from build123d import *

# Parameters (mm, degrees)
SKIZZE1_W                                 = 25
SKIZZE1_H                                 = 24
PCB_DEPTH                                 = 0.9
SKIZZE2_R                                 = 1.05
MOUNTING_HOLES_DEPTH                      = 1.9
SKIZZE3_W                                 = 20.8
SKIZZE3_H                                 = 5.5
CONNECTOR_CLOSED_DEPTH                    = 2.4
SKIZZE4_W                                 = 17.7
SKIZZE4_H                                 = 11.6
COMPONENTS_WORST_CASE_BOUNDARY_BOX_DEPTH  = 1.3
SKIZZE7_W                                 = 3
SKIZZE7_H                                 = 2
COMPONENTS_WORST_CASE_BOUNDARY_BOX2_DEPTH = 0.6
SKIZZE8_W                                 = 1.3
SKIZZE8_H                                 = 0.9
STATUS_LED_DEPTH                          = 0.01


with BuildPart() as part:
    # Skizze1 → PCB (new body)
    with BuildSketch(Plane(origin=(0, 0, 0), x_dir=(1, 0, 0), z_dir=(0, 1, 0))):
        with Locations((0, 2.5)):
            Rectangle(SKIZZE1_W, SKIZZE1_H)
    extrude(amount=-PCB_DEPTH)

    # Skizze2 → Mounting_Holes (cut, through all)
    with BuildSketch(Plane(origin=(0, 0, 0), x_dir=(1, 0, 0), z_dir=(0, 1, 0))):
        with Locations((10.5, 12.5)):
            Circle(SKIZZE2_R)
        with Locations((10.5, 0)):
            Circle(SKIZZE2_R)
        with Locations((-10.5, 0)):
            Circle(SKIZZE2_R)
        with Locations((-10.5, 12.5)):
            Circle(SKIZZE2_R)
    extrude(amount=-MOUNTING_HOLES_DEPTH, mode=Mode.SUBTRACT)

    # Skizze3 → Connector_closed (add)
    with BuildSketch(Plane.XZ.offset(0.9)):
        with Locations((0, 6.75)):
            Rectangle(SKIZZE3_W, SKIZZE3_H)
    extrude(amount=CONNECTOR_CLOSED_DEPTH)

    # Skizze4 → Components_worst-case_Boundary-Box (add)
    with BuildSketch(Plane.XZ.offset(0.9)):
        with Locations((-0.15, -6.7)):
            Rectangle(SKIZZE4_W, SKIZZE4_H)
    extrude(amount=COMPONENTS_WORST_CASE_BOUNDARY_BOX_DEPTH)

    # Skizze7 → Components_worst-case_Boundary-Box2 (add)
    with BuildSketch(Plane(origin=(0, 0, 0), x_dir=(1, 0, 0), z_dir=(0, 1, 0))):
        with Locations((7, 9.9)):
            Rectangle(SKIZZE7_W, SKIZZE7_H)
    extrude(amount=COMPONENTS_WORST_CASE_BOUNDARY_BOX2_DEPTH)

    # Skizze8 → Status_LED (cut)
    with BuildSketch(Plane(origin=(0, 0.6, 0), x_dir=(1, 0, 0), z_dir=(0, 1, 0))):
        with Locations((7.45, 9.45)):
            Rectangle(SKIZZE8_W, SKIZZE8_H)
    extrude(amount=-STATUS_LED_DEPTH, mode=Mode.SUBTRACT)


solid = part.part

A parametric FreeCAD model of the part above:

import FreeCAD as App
import Part
import Sketcher
from FreeCAD import Vector


def add_polygon(sketch, points):
    """Adds a closed chain of lines whose ends are joined by coincident constraints."""
    first, n = sketch.GeometryCount, len(points)
    for a, b in zip(points, points[1:] + points[:1]):
        sketch.addGeometry(Part.LineSegment(App.Vector(*a, 0), App.Vector(*b, 0)), False)
    for i in range(n):
        sketch.addConstraint(Sketcher.Constraint("Coincident", first + i, 2, first + (i + 1) % n, 1))

doc = App.newDocument("Part")
params = doc.addObject("Spreadsheet::Sheet", "Params")
for row, (alias, value) in enumerate([
    ("sketch1_width", "25 mm"),
    ("sketch1_height", "24 mm"),
    ("pad1_length", "0.9 mm"),
    ("sketch2_diameter", "2.1 mm"),
    ("sketch3_width", "20.8 mm"),
    ("sketch3_height", "5.5 mm"),
    ("pad2_length", "2.4 mm"),
    ("sketch4_width", "17.7 mm"),
    ("sketch4_height", "11.6 mm"),
    ("pad3_length", "1.3 mm"),
    ("sketch5_width", "3 mm"),
    ("sketch5_height", "2 mm"),
    ("pad4_length", "0.6 mm"),
    ("sketch6_width", "1.3 mm"),
    ("sketch6_height", "0.9 mm"),
    ("pocket2_length", "0.01 mm"),
], start=1):
    params.set(f"A{row}", alias)
    params.set(f"B{row}", "=" + value)
    params.setAlias(f"B{row}", alias)

body = doc.addObject("PartDesign::Body", "Body")

# Sketch on XZ plane
sketch1 = body.newObject("Sketcher::SketchObject", "Sketch")
sketch1.AttachmentSupport = (doc.getObject("XZ_Plane"), [""])
sketch1.MapMode = "FlatFace"
add_polygon(sketch1, [(-12, -14), (-12, 10), (12, 10), (12, -14)])  # lines 0-3
sketch1.addConstraint([
    Sketcher.Constraint("Vertical", 0),
    Sketcher.Constraint("Horizontal", 1),
    Sketcher.Constraint("Vertical", 2),
    Sketcher.Constraint("Horizontal", 3),
    Sketcher.Constraint("DistanceX", 1, 1, 1, 2, 25.0),
    Sketcher.Constraint("DistanceY", 0, 1, 0, 2, 24.0),
    Sketcher.Constraint("DistanceX", 0, 2, -1, 1, 12.5),
    Sketcher.Constraint("DistanceY", -1, 1, 0, 2, 9.5),
])
sketch1.setExpression("Constraints[8]", "Params.sketch1_width")
sketch1.setExpression("Constraints[9]", "Params.sketch1_height")
pad1 = body.newObject("PartDesign::Pad", "Pad")
pad1.Profile = sketch1
pad1.setExpression("Length", "Params.pad1_length")

# Sketch on XZ plane
sketch2 = body.newObject("Sketcher::SketchObject", "Sketch001")
sketch2.AttachmentSupport = (doc.getObject("XZ_Plane"), [""])
sketch2.MapMode = "FlatFace"
sketch2.addGeometry([
    Part.Circle(Vector(10.5, -12.5, 0), Vector(0, 0, 1), 1.1),
    Part.Circle(Vector(10.5, 0, 0), Vector(0, 0, 1), 1.1),
    Part.Circle(Vector(-10.5, 0, 0), Vector(0, 0, 1), 1.1),
    Part.Circle(Vector(-10.5, -12.5, 0), Vector(0, 0, 1), 1.1),
], False)
sketch2.addConstraint([
    Sketcher.Constraint("Equal", 0, 1),
    Sketcher.Constraint("Equal", 1, 2),
    Sketcher.Constraint("Equal", 2, 3),
    Sketcher.Constraint("Symmetric", 1, 3, 2, 3, -1, 1),
    Sketcher.Constraint("Symmetric", 0, 3, 3, 3, -2),
    Sketcher.Constraint("PointOnObject", 1, 3, -1),
    Sketcher.Constraint("Vertical", 0, 3, 1, 3),
    Sketcher.Constraint("Diameter", 0, 2.1),
    Sketcher.Constraint("DistanceX", 2, 3, 1, 3, 21.0),
    Sketcher.Constraint("DistanceY", 0, 3, -1, 1, 12.5),
])
sketch2.setExpression("Constraints[7]", "Params.sketch2_diameter")
pocket1 = body.newObject("PartDesign::Pocket", "Pocket")
pocket1.Profile = sketch2
pocket1.Type = "ThroughAll"
pocket1.Reversed = True

# Sketch on XZ plane
sketch3 = body.newObject("Sketcher::SketchObject", "Sketch002")
sketch3.AttachmentSupport = (doc.getObject("XZ_Plane"), [""])
sketch3.MapMode = "FlatFace"
sketch3.AttachmentOffset = App.Placement(Vector(0, 0, 0.9), App.Rotation())
add_polygon(sketch3, [(-10, 10), (-10, 4), (10, 4), (10, 10)])  # lines 0-3
sketch3.addConstraint([
    Sketcher.Constraint("Vertical", 0),
    Sketcher.Constraint("Horizontal", 1),
    Sketcher.Constraint("Vertical", 2),
    Sketcher.Constraint("Horizontal", 3),
    Sketcher.Constraint("DistanceX", 1, 1, 1, 2, 20.8),
    Sketcher.Constraint("DistanceY", 0, 2, 0, 1, 5.5),
    Sketcher.Constraint("DistanceY", -1, 1, 0, 2, 4.0),
    Sketcher.Constraint("DistanceX", 0, 2, -1, 1, 10.4),
])
sketch3.setExpression("Constraints[8]", "Params.sketch3_width")
sketch3.setExpression("Constraints[9]", "Params.sketch3_height")
pad2 = body.newObject("PartDesign::Pad", "Pad001")
pad2.Profile = sketch3
pad2.setExpression("Length", "Params.pad2_length")

# Sketch on XZ plane
sketch4 = body.newObject("Sketcher::SketchObject", "Sketch003")
sketch4.AttachmentSupport = (doc.getObject("XZ_Plane"), [""])
sketch4.MapMode = "FlatFace"
sketch4.AttachmentOffset = App.Placement(Vector(0, 0, 0.9), App.Rotation())
add_polygon(sketch4, [(-9, -1), (-9, -12), (9, -12), (9, -1)])  # lines 0-3
sketch4.addConstraint([
    Sketcher.Constraint("Vertical", 0),
    Sketcher.Constraint("Horizontal", 1),
    Sketcher.Constraint("Vertical", 2),
    Sketcher.Constraint("Horizontal", 3),
    Sketcher.Constraint("DistanceX", 1, 1, 1, 2, 17.7),
    Sketcher.Constraint("DistanceY", 0, 2, 0, 1, 11.6),
    Sketcher.Constraint("DistanceX", 0, 2, -1, 1, 9.0),
    Sketcher.Constraint("DistanceY", 0, 2, -1, 1, 12.5),
])
sketch4.setExpression("Constraints[8]", "Params.sketch4_width")
sketch4.setExpression("Constraints[9]", "Params.sketch4_height")
pad3 = body.newObject("PartDesign::Pad", "Pad002")
pad3.Profile = sketch4
pad3.setExpression("Length", "Params.pad3_length")

# Sketch on XZ plane
sketch5 = body.newObject("Sketcher::SketchObject", "Sketch004")
sketch5.AttachmentSupport = (doc.getObject("XZ_Plane"), [""])
sketch5.MapMode = "FlatFace"
add_polygon(sketch5, [(5.5, -10.9), (5.5, -8.9), (8.5, -8.9), (8.5, -10.9)])  # lines 0-3
sketch5.addConstraint([
    Sketcher.Constraint("Vertical", 0),
    Sketcher.Constraint("Horizontal", 1),
    Sketcher.Constraint("Vertical", 2),
    Sketcher.Constraint("Horizontal", 3),
    Sketcher.Constraint("DistanceX", 1, 1, 1, 2, 3.0),
    Sketcher.Constraint("DistanceY", 0, 1, 0, 2, 2.0),
    Sketcher.Constraint("DistanceX", -1, 1, 0, 2, 5.5),
    Sketcher.Constraint("DistanceY", 0, 2, -1, 1, 8.9),
])
sketch5.setExpression("Constraints[8]", "Params.sketch5_width")
sketch5.setExpression("Constraints[9]", "Params.sketch5_height")
pad4 = body.newObject("PartDesign::Pad", "Pad003")
pad4.Profile = sketch5
pad4.setExpression("Length", "Params.pad4_length")
pad4.Reversed = True

# Sketch on XZ plane
sketch6 = body.newObject("Sketcher::SketchObject", "Sketch005")
sketch6.AttachmentSupport = (doc.getObject("XZ_Plane"), [""])
sketch6.MapMode = "FlatFace"
sketch6.AttachmentOffset = App.Placement(Vector(0, 0, -0.6), App.Rotation())
add_polygon(sketch6, [(6.8, -9.9), (6.8, -9), (8.1, -9), (8.1, -9.9)])  # lines 0-3
sketch6.addConstraint([
    Sketcher.Constraint("Vertical", 0),
    Sketcher.Constraint("Horizontal", 1),
    Sketcher.Constraint("Vertical", 2),
    Sketcher.Constraint("Horizontal", 3),
    Sketcher.Constraint("DistanceX", 1, 1, 1, 2, 1.3),
    Sketcher.Constraint("DistanceY", 0, 1, 0, 2, 0.9),
    Sketcher.Constraint("DistanceY", 0, 2, -1, 1, 9.0),
    Sketcher.Constraint("DistanceX", -1, 1, 0, 2, 6.8),
])
sketch6.setExpression("Constraints[8]", "Params.sketch6_width")
sketch6.setExpression("Constraints[9]", "Params.sketch6_height")
pocket2 = body.newObject("PartDesign::Pocket", "Pocket001")
pocket2.Profile = sketch6
pocket2.setExpression("Length", "Params.pocket2_length")
pocket2.Reversed = True

doc.recompute()
